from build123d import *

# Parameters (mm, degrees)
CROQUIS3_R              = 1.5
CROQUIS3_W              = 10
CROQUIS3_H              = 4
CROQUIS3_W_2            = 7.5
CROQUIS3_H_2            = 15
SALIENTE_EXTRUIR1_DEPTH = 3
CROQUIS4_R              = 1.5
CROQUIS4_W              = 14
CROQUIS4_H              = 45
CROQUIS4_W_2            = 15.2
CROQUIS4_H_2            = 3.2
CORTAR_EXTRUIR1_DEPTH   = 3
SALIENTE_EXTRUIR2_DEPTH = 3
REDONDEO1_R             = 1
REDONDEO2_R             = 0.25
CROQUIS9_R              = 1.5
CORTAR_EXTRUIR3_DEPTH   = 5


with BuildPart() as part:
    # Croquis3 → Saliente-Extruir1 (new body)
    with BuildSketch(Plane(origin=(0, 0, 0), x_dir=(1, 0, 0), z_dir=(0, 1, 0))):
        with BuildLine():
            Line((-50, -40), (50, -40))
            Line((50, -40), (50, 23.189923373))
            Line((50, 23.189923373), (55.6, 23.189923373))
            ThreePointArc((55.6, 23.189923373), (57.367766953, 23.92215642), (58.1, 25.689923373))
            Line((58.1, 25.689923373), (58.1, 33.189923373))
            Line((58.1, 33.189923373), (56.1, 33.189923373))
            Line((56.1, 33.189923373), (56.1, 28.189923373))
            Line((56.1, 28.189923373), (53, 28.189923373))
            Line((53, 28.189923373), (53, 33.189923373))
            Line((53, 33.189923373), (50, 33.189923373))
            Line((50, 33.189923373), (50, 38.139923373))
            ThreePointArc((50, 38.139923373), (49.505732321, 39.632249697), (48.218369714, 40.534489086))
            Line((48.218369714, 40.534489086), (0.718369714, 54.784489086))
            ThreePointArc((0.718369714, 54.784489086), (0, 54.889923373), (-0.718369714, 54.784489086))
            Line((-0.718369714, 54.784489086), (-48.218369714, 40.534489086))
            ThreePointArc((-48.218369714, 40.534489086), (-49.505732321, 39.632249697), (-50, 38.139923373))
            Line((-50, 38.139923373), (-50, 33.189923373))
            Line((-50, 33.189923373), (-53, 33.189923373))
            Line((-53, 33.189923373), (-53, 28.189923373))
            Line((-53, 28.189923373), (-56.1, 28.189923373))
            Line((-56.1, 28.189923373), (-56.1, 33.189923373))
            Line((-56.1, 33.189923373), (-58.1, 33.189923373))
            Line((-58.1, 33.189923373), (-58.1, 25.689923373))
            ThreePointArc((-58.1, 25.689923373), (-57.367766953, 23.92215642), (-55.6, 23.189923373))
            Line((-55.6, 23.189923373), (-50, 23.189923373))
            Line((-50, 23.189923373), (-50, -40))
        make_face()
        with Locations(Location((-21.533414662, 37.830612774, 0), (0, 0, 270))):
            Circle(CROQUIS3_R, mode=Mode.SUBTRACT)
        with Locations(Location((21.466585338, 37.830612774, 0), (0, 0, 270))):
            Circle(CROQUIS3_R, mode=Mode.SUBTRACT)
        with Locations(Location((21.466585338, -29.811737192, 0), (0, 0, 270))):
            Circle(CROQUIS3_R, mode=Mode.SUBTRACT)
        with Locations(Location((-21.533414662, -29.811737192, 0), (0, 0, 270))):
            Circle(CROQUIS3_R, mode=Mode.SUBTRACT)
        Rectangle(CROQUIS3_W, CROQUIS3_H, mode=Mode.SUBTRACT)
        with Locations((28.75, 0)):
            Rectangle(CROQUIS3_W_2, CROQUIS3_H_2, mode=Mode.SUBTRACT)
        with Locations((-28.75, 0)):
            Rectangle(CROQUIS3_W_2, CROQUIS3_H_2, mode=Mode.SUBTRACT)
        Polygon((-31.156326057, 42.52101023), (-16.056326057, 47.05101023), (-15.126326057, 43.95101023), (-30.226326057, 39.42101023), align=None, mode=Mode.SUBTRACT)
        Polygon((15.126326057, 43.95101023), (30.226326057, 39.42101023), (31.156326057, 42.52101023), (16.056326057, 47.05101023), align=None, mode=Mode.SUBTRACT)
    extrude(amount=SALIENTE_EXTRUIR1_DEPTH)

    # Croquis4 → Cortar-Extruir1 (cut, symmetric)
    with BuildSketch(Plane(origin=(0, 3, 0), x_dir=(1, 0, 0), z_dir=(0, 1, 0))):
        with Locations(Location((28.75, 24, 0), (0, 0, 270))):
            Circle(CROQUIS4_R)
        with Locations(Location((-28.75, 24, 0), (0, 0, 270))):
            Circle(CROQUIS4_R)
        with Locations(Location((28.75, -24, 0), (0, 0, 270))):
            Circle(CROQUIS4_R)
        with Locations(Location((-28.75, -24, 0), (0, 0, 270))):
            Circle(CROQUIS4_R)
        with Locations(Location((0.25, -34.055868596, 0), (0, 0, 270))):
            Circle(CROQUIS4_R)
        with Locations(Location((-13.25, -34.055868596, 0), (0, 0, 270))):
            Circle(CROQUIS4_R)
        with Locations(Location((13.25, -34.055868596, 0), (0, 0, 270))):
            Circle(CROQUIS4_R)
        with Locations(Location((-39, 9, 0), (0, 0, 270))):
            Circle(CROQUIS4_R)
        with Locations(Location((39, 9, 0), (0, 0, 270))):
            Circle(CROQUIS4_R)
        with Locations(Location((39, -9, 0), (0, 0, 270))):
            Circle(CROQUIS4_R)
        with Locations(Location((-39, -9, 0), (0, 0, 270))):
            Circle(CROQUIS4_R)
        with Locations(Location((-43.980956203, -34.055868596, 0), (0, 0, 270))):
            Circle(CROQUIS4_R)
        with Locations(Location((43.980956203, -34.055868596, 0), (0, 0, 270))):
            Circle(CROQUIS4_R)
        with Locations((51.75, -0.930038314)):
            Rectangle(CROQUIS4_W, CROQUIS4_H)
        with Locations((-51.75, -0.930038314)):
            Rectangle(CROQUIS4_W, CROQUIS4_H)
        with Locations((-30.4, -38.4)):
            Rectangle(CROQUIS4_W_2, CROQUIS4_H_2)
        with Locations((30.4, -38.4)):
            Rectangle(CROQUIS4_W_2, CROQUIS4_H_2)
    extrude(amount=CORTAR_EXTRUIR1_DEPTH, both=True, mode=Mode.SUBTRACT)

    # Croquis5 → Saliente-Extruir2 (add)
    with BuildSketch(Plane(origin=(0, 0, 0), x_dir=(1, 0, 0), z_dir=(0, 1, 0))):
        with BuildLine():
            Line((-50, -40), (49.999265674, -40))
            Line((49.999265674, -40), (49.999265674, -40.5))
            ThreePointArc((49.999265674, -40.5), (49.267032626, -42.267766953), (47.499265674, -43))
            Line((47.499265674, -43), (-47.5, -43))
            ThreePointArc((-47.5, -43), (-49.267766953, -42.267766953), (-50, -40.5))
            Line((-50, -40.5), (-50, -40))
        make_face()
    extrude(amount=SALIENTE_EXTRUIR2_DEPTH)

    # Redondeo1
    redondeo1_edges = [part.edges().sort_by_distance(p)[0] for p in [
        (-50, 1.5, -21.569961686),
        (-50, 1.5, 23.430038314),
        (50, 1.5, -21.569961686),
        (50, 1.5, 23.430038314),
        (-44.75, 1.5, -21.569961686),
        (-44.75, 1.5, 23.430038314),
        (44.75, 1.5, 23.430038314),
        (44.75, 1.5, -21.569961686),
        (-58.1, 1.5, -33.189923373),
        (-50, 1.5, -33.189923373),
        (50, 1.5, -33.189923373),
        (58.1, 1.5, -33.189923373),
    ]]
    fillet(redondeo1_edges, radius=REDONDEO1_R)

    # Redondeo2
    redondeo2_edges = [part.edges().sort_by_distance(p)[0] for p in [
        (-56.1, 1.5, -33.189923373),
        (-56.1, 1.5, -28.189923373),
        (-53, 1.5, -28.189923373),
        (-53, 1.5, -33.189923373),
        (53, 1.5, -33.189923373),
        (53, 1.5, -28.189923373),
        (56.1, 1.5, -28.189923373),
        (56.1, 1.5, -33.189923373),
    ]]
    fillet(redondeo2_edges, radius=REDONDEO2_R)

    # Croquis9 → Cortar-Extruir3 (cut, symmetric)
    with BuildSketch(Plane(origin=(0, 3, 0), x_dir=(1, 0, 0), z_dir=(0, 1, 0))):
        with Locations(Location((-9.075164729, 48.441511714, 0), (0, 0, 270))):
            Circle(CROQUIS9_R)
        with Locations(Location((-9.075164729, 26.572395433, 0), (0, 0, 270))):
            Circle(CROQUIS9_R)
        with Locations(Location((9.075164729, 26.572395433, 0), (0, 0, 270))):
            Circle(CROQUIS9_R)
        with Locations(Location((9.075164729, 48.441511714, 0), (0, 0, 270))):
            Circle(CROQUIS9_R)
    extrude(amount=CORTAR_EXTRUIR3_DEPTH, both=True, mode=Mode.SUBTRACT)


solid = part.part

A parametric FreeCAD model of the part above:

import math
import FreeCAD as App
import Part
import Sketcher
from FreeCAD import Vector
Q = App.Units.Quantity


def edges_at(feature, points):
    """Names of the edges that pass closest to the given points."""
    edges = feature.Shape.Edges
    near = lambda p: min(range(len(edges)), key=lambda i: edges[i].distToShape(Part.Vertex(*p))[0])
    return sorted({f"Edge{near(p) + 1}" for p in points})

doc = App.newDocument("Part")
body = doc.addObject("PartDesign::Body", "Body")

sketch1 = body.newObject("Sketcher::SketchObject", "Sketch")
sketch1.AttachmentSupport = (doc.getObject("XZ_Plane"), [""])
sketch1.MapMode = "FlatFace"
sketch1.addGeometry(Part.LineSegment(Vector(-50, 40, 0), Vector(50, 40, 0)), False)
sketch1.addGeometry(Part.LineSegment(Vector(50, 40, 0), Vector(50, -23.189923, 0)), False)
sketch1.addGeometry(Part.LineSegment(Vector(50, -23.189923, 0), Vector(55.6, -23.189923, 0)), False)
sketch1.addGeometry(Part.ArcOfCircle(Part.Circle(Vector(55.6, -25.689923, 0), Vector(0, 0, 1), 2.5), math.radians(0), math.radians(90)), False)
sketch1.addGeometry(Part.LineSegment(Vector(58.1, -25.689923, 0), Vector(58.1, -33.189923, 0)), False)
sketch1.addGeometry(Part.LineSegment(Vector(58.1, -33.189923, 0), Vector(56.1, -33.189923, 0)), False)
sketch1.addGeometry(Part.LineSegment(Vector(56.1, -33.189923, 0), Vector(56.1, -28.189923, 0)), False)
sketch1.addGeometry(Part.LineSegment(Vector(56.1, -28.189923, 0), Vector(53, -28.189923, 0)), False)
sketch1.addGeometry(Part.LineSegment(Vector(53, -28.189923, 0), Vector(53, -33.189923, 0)), False)
sketch1.addGeometry(Part.LineSegment(Vector(53, -33.189923, 0), Vector(50, -33.189923, 0)), False)
sketch1.addGeometry(Part.LineSegment(Vector(50, -33.189923, 0), Vector(50, -38.139923, 0)), False)
sketch1.addGeometry(Part.ArcOfCircle(Part.Circle(Vector(47.5, -38.139923, 0), Vector(0, 0, 1), 2.5), math.radians(-73.300756), math.radians(0)), False)
sketch1.addGeometry(Part.LineSegment(Vector(48.21837, -40.534489, 0), Vector(0.71837, -54.784489, 0)), False)
sketch1.addGeometry(Part.ArcOfCircle(Part.Circle(Vector(0, -52.389923, 0), Vector(0, 0, 1), 2.5), math.radians(-106.699244), math.radians(-73.300756)), False)
sketch1.addGeometry(Part.LineSegment(Vector(-0.71837, -54.784489, 0), Vector(-48.21837, -40.534489, 0)), False)
sketch1.addGeometry(Part.ArcOfCircle(Part.Circle(Vector(-47.5, -38.139923, 0), Vector(0, 0, 1), 2.5), math.radians(180), math.radians(253.300756)), False)
sketch1.addGeometry(Part.LineSegment(Vector(-50, -38.139923, 0), Vector(-50, -33.189923, 0)), False)
sketch1.addGeometry(Part.LineSegment(Vector(-50, -33.189923, 0), Vector(-53, -33.189923, 0)), False)
sketch1.addGeometry(Part.LineSegment(Vector(-53, -33.189923, 0), Vector(-53, -28.189923, 0)), False)
sketch1.addGeometry(Part.LineSegment(Vector(-53, -28.189923, 0), Vector(-56.1, -28.189923, 0)), False)
sketch1.addGeometry(Part.LineSegment(Vector(-56.1, -28.189923, 0), Vector(-56.1, -33.189923, 0)), False)
sketch1.addGeometry(Part.LineSegment(Vector(-56.1, -33.189923, 0), Vector(-58.1, -33.189923, 0)), False)
sketch1.addGeometry(Part.LineSegment(Vector(-58.1, -33.189923, 0), Vector(-58.1, -25.689923, 0)), False)
sketch1.addGeometry(Part.ArcOfCircle(Part.Circle(Vector(-55.6, -25.689923, 0), Vector(0, 0, 1), 2.5), math.radians(90), math.radians(180)), False)
sketch1.addGeometry(Part.LineSegment(Vector(-55.6, -23.189923, 0), Vector(-50, -23.189923, 0)), False)
sketch1.addGeometry(Part.LineSegment(Vector(-50, -23.189923, 0), Vector(-50, 40, 0)), False)
sketch1.addGeometry(Part.Circle(Vector(-21.533415, 29.811737, 0), Vector(0, 0, 1), 1.5), False)
sketch1.addGeometry(Part.LineSegment(Vector(-25, 7.5, 0), Vector(-32.5, 7.5, 0)), False)
sketch1.addGeometry(Part.LineSegment(Vector(-32.5, 7.5, 0), Vector(-32.5, -7.5, 0)), False)
sketch1.addGeometry(Part.LineSegment(Vector(-32.5, -7.5, 0), Vector(-25, -7.5, 0)), False)
sketch1.addGeometry(Part.LineSegment(Vector(-25, -7.5, 0), Vector(-25, 7.5, 0)), False)
sketch1.addGeometry(Part.Circle(Vector(21.466585, 29.811737, 0), Vector(0, 0, 1), 1.5), False)
sketch1.addGeometry(Part.LineSegment(Vector(5, 2, 0), Vector(-5, 2, 0)), False)
sketch1.addGeometry(Part.LineSegment(Vector(-5, 2, 0), Vector(-5, -2, 0)), False)
sketch1.addGeometry(Part.LineSegment(Vector(-5, -2, 0), Vector(5, -2, 0)), False)
sketch1.addGeometry(Part.LineSegment(Vector(5, -2, 0), Vector(5, 2, 0)), False)
sketch1.addGeometry(Part.LineSegment(Vector(32.5, 7.5, 0), Vector(25, 7.5, 0)), False)
sketch1.addGeometry(Part.LineSegment(Vector(25, 7.5, 0), Vector(25, -7.5, 0)), False)
sketch1.addGeometry(Part.LineSegment(Vector(25, -7.5, 0), Vector(32.5, -7.5, 0)), False)
sketch1.addGeometry(Part.LineSegment(Vector(32.5, -7.5, 0), Vector(32.5, 7.5, 0)), False)
sketch1.addGeometry(Part.Circle(Vector(-21.533415, -37.830613, 0), Vector(0, 0, 1), 1.5), False)
sketch1.addGeometry(Part.LineSegment(Vector(-30.226326, -39.42101, 0), Vector(-31.156326, -42.52101, 0)), False)
sketch1.addGeometry(Part.LineSegment(Vector(-31.156326, -42.52101, 0), Vector(-16.056326, -47.05101, 0)), False)
sketch1.addGeometry(Part.LineSegment(Vector(-16.056326, -47.05101, 0), Vector(-15.126326, -43.95101, 0)), False)
sketch1.addGeometry(Part.LineSegment(Vector(-15.126326, -43.95101, 0), Vector(-30.226326, -39.42101, 0)), False)
sketch1.addGeometry(Part.Circle(Vector(21.466585, -37.830613, 0), Vector(0, 0, 1), 1.5), False)
sketch1.addGeometry(Part.LineSegment(Vector(30.226326, -39.42101, 0), Vector(15.126326, -43.95101, 0)), False)
sketch1.addGeometry(Part.LineSegment(Vector(15.126326, -43.95101, 0), Vector(16.056326, -47.05101, 0)), False)
sketch1.addGeometry(Part.LineSegment(Vector(16.056326, -47.05101, 0), Vector(31.156326, -42.52101, 0)), False)
sketch1.addGeometry(Part.LineSegment(Vector(31.156326, -42.52101, 0), Vector(30.226326, -39.42101, 0)), False)
sketch1.addConstraint(Sketcher.Constraint("Coincident", 0, 2, 1, 1))
sketch1.addConstraint(Sketcher.Constraint("Coincident", 1, 2, 2, 1))
sketch1.addConstraint(Sketcher.Constraint("Tangent", 2, 2, 3, 2))
sketch1.addConstraint(Sketcher.Constraint("Tangent", 3, 1, 4, 1))
sketch1.addConstraint(Sketcher.Constraint("Coincident", 4, 2, 5, 1))
sketch1.addConstraint(Sketcher.Constraint("Coincident", 5, 2, 6, 1))
sketch1.addConstraint(Sketcher.Constraint("Coincident", 6, 2, 7, 1))
sketch1.addConstraint(Sketcher.Constraint("Coincident", 7, 2, 8, 1))
sketch1.addConstraint(Sketcher.Constraint("Coincident", 8, 2, 9, 1))
sketch1.addConstraint(Sketcher.Constraint("Coincident", 9, 2, 10, 1))
sketch1.addConstraint(Sketcher.Constraint("Tangent", 10, 2, 11, 2))
sketch1.addConstraint(Sketcher.Constraint("Tangent", 11, 1, 12, 1))
sketch1.addConstraint(Sketcher.Constraint("Tangent", 12, 2, 13, 2))
sketch1.addConstraint(Sketcher.Constraint("Tangent", 13, 1, 14, 1))
sketch1.addConstraint(Sketcher.Constraint("Tangent", 14, 2, 15, 2))
sketch1.addConstraint(Sketcher.Constraint("Tangent", 15, 1, 16, 1))
sketch1.addConstraint(Sketcher.Constraint("Coincident", 16, 2, 17, 1))
sketch1.addConstraint(Sketcher.Constraint("Coincident", 17, 2, 18, 1))
sketch1.addConstraint(Sketcher.Constraint("Coincident", 18, 2, 19, 1))
sketch1.addConstraint(Sketcher.Constraint("Coincident", 19, 2, 20, 1))
sketch1.addConstraint(Sketcher.Constraint("Coincident", 20, 2, 21, 1))
sketch1.addConstraint(Sketcher.Constraint("Coincident", 21, 2, 22, 1))
sketch1.addConstraint(Sketcher.Constraint("Tangent", 22, 2, 23, 2))
sketch1.addConstraint(Sketcher.Constraint("Tangent", 23, 1, 24, 1))
sketch1.addConstraint(Sketcher.Constraint("Coincident", 24, 2, 25, 1))
sketch1.addConstraint(Sketcher.Constraint("Coincident", 25, 2, 0, 1))
sketch1.addConstraint(Sketcher.Constraint("Coincident", 27, 2, 28, 1))
sketch1.addConstraint(Sketcher.Constraint("Coincident", 28, 2, 29, 1))
sketch1.addConstraint(Sketcher.Constraint("Coincident", 29, 2, 30, 1))
sketch1.addConstraint(Sketcher.Constraint("Coincident", 30, 2, 27, 1))
sketch1.addConstraint(Sketcher.Constraint("Coincident", 32, 2, 33, 1))
sketch1.addConstraint(Sketcher.Constraint("Coincident", 33, 2, 34, 1))
sketch1.addConstraint(Sketcher.Constraint("Coincident", 34, 2, 35, 1))
sketch1.addConstraint(Sketcher.Constraint("Coincident", 35, 2, 32, 1))
sketch1.addConstraint(Sketcher.Constraint("Coincident", 36, 2, 37, 1))
sketch1.addConstraint(Sketcher.Constraint("Coincident", 37, 2, 38, 1))
sketch1.addConstraint(Sketcher.Constraint("Coincident", 38, 2, 39, 1))
sketch1.addConstraint(Sketcher.Constraint("Coincident", 39, 2, 36, 1))
sketch1.addConstraint(Sketcher.Constraint("Coincident", 41, 2, 42, 1))
sketch1.addConstraint(Sketcher.Constraint("Coincident", 42, 2, 43, 1))
sketch1.addConstraint(Sketcher.Constraint("Coincident", 43, 2, 44, 1))
sketch1.addConstraint(Sketcher.Constraint("Coincident", 44, 2, 41, 1))
sketch1.addConstraint(Sketcher.Constraint("Coincident", 46, 2, 47, 1))
sketch1.addConstraint(Sketcher.Constraint("Coincident", 47, 2, 48, 1))
sketch1.addConstraint(Sketcher.Constraint("Coincident", 48, 2, 49, 1))
sketch1.addConstraint(Sketcher.Constraint("Coincident", 49, 2, 46, 1))
sketch1.addConstraint(Sketcher.Constraint("Horizontal", 0))
sketch1.addConstraint(Sketcher.Constraint("Vertical", 1))
sketch1.addConstraint(Sketcher.Constraint("Horizontal", 2))
sketch1.addConstraint(Sketcher.Constraint("Vertical", 4))
sketch1.addConstraint(Sketcher.Constraint("Horizontal", 5))
sketch1.addConstraint(Sketcher.Constraint("Vertical", 6))
sketch1.addConstraint(Sketcher.Constraint("Horizontal", 7))
sketch1.addConstraint(Sketcher.Constraint("Vertical", 8))
sketch1.addConstraint(Sketcher.Constraint("Horizontal", 9))
sketch1.addConstraint(Sketcher.Constraint("Vertical", 10))
sketch1.addConstraint(Sketcher.Constraint("Vertical", 16))
sketch1.addConstraint(Sketcher.Constraint("Horizontal", 17))
sketch1.addConstraint(Sketcher.Constraint("Vertical", 18))
sketch1.addConstraint(Sketcher.Constraint("Horizontal", 19))
sketch1.addConstraint(Sketcher.Constraint("Vertical", 20))
sketch1.addConstraint(Sketcher.Constraint("Horizontal", 21))
sketch1.addConstraint(Sketcher.Constraint("Vertical", 22))
sketch1.addConstraint(Sketcher.Constraint("Horizontal", 24))
sketch1.addConstraint(Sketcher.Constraint("Vertical", 25))
sketch1.addConstraint(Sketcher.Constraint("Horizontal", 27))
sketch1.addConstraint(Sketcher.Constraint("Vertical", 28))
sketch1.addConstraint(Sketcher.Constraint("Horizontal", 29))
sketch1.addConstraint(Sketcher.Constraint("Vertical", 30))
sketch1.addConstraint(Sketcher.Constraint("Horizontal", 32))
sketch1.addConstraint(Sketcher.Constraint("Vertical", 33))
sketch1.addConstraint(Sketcher.Constraint("Horizontal", 34))
sketch1.addConstraint(Sketcher.Constraint("Vertical", 35))
sketch1.addConstraint(Sketcher.Constraint("Horizontal", 36))
sketch1.addConstraint(Sketcher.Constraint("Vertical", 37))
sketch1.addConstraint(Sketcher.Constraint("Horizontal", 38))
sketch1.addConstraint(Sketcher.Constraint("Vertical", 39))
sketch1.addConstraint(Sketcher.Constraint("Equal", 3, 11))
sketch1.addConstraint(Sketcher.Constraint("Equal", 11, 13))
sketch1.addConstraint(Sketcher.Constraint("Equal", 13, 15))
sketch1.addConstraint(Sketcher.Constraint("Equal", 15, 23))
sketch1.addConstraint(Sketcher.Constraint("Equal", 26, 31))
sketch1.addConstraint(Sketcher.Constraint("Equal", 31, 40))
sketch1.addConstraint(Sketcher.Constraint("Equal", 40, 45))
sketch1.addConstraint(Sketcher.Constraint("Symmetric", 32, 2, 34, 2, -1, 1))
sketch1.addConstraint(Sketcher.Constraint("Symmetric", 29, 2, 36, 2, -1, 1))
sketch1.addConstraint(Sketcher.Constraint("Symmetric", 27, 2, 38, 2, -1, 1))
sketch1.addConstraint(Sketcher.Constraint("Symmetric", 11, 3, 15, 3, -2))
sketch1.addConstraint(Sketcher.Constraint("Symmetric", 3, 3, 23, 3, -2))
sketch1.addConstraint(Sketcher.Constraint("Symmetric", 8, 2, 17, 2, -2))
sketch1.addConstraint(Sketcher.Constraint("Symmetric", 6, 2, 19, 2, -2))
sketch1.addConstraint(Sketcher.Constraint("Symmetric", 43, 2, 46, 2, -2))
sketch1.addConstraint(Sketcher.Constraint("Symmetric", 42, 2, 47, 2, -2))
sketch1.addConstraint(Sketcher.Constraint("Symmetric", 41, 2, 48, 2, -2))
sketch1.addConstraint(Sketcher.Constraint("Symmetric", 44, 2, 49, 2, -2))
sketch1.addConstraint(Sketcher.Constraint("PointOnObject", 13, 3, -2))
sketch1.addConstraint(Sketcher.Constraint("Perpendicular", 14, 41))
sketch1.addConstraint(Sketcher.Constraint("Perpendicular", 41, 42))
sketch1.addConstraint(Sketcher.Constraint("Perpendicular", 42, 43))
sketch1.addConstraint(Sketcher.Constraint("Perpendicular", 43, 44))
sketch1.addConstraint(Sketcher.Constraint("Horizontal", 26, 3, 31, 3))
sketch1.addConstraint(Sketcher.Constraint("Horizontal", 40, 3, 45, 3))
sketch1.addConstraint(Sketcher.Constraint("Horizontal", 5, 2, 8, 2))
sketch1.addConstraint(Sketcher.Constraint("Horizontal", 17, 2, 20, 2))
sketch1.addConstraint(Sketcher.Constraint("Horizontal", 30, 2, 36, 2))
sketch1.addConstraint(Sketcher.Constraint("Vertical", 26, 3, 40, 3))
sketch1.addConstraint(Sketcher.Constraint("Vertical", 31, 3, 45, 3))
sketch1.addConstraint(Sketcher.Constraint("Vertical", 1, 2, 9, 2))
sketch1.addConstraint(Sketcher.Constraint("Vertical", 16, 2, 24, 2))
sketch1.addConstraint(Sketcher.Constraint("Equal", 38, 4))
sketch1.addConstraint(Sketcher.Constraint("Diameter", 26, Q("3 mm")))
sketch1.addConstraint(Sketcher.Constraint("Radius", 3, Q("2.5 mm")))
sketch1.addConstraint(Sketcher.Constraint("DistanceX", 0, 1, 0, 2, Q("100 mm")))
sketch1.addConstraint(Sketcher.Constraint("DistanceX", 5, 2, 5, 1, Q("2 mm")))
sketch1.addConstraint(Sketcher.Constraint("DistanceX", 9, 2, 9, 1, Q("3 mm")))
sketch1.addConstraint(Sketcher.Constraint("DistanceX", 32, 2, 32, 1, Q("10 mm")))
sketch1.addConstraint(Sketcher.Constraint("DistanceY", 6, 1, 6, 2, Q("5 mm")))
sketch1.addConstraint(Sketcher.Constraint("DistanceY", 28, 2, 28, 1, Q("15 mm")))
sketch1.addConstraint(Sketcher.Constraint("DistanceY", 33, 2, 33, 1, Q("4 mm")))
sketch1.addConstraint(Sketcher.Constraint("DistanceX", 2, 1, 2, 2, Q("5.6 mm")))
sketch1.addConstraint(Sketcher.Constraint("DistanceX", 27, 2, 27, 1, Q("7.5 mm")))
sketch1.addConstraint(Sketcher.Constraint("DistanceY", -1, 1, 0, 2, Q("40 mm")))
sketch1.addConstraint(Sketcher.Constraint("DistanceX", 29, 2, -1, 1, Q("25 mm")))
sketch1.addConstraint(Sketcher.Constraint("DistanceX", 26, 3, 31, 3, Q("43 mm")))
sketch1.addConstraint(Sketcher.Constraint("DistanceY", 10, 2, 10, 1, Q("4.95 mm")))
sketch1.addConstraint(Sketcher.Constraint("DistanceY", 13, 3, 3, 3, Q("26.7 mm")))
sketch1.addConstraint(Sketcher.Constraint("DistanceX", 41, 2, 42, 2, Q("15.1 mm")))
sketch1.addConstraint(Sketcher.Constraint("DistanceY", 42, 2, 43, 2, Q("3.1 mm")))
sketch1.addConstraint(Sketcher.Constraint("DistanceY", 1, 2, 1, 1, Q("63.189923 mm")))
sketch1.addConstraint(Sketcher.Constraint("DistanceY", 41, 2, -1, 1, Q("42.52101 mm")))
sketch1.addConstraint(Sketcher.Constraint("DistanceY", 23, 3, 26, 3, Q("55.501661 mm")))
sketch1.addConstraint(Sketcher.Constraint("DistanceY", 15, 3, 40, 3, Q("0.309311 mm")))
sketch1.addConstraint(Sketcher.Constraint("DistanceX", 41, 2, 40, 3, Q("9.622911 mm")))
sketch1.addConstraint(Sketcher.Constraint("DistanceX", 46, 2, 45, 3, Q("6.340259 mm")))
pad1 = body.newObject("PartDesign::Pad", "Pad")
pad1.Profile = sketch1
pad1.Length = 3
pad1.Reversed = True

sketch2 = body.newObject("Sketcher::SketchObject", "Sketch001")
sketch2.AttachmentSupport = (doc.getObject("XZ_Plane"), [""])
sketch2.MapMode = "FlatFace"
sketch2.AttachmentOffset = App.Placement(Vector(0, 0, -3), App.Rotation())
sketch2.addGeometry(Part.Circle(Vector(28.75, -24, 0), Vector(0, 0, 1), 1.5), False)
sketch2.addGeometry(Part.Circle(Vector(-28.75, -24, 0), Vector(0, 0, 1), 1.5), False)
sketch2.addGeometry(Part.Circle(Vector(28.75, 24, 0), Vector(0, 0, 1), 1.5), False)
sketch2.addGeometry(Part.Circle(Vector(-28.75, 24, 0), Vector(0, 0, 1), 1.5), False)
sketch2.addGeometry(Part.Circle(Vector(0.25, 34.055869, 0), Vector(0, 0, 1), 1.5), False)
sketch2.addGeometry(Part.Circle(Vector(-13.25, 34.055869, 0), Vector(0, 0, 1), 1.5), False)
sketch2.addGeometry(Part.Circle(Vector(13.25, 34.055869, 0), Vector(0, 0, 1), 1.5), False)
sketch2.addGeometry(Part.Circle(Vector(-39, -9, 0), Vector(0, 0, 1), 1.5), False)
sketch2.addGeometry(Part.Circle(Vector(39, -9, 0), Vector(0, 0, 1), 1.5), False)
sketch2.addGeometry(Part.Circle(Vector(39, 9, 0), Vector(0, 0, 1), 1.5), False)
sketch2.addGeometry(Part.Circle(Vector(-39, 9, 0), Vector(0, 0, 1), 1.5), False)
sketch2.addGeometry(Part.Circle(Vector(-43.980956, 34.055869, 0), Vector(0, 0, 1), 1.5), False)
sketch2.addGeometry(Part.Circle(Vector(43.980956, 34.055869, 0), Vector(0, 0, 1), 1.5), False)
sketch2.addGeometry(Part.LineSegment(Vector(44.75, -21.569962, 0), Vector(44.75, 23.430038, 0)), False)
sketch2.addGeometry(Part.LineSegment(Vector(44.75, 23.430038, 0), Vector(58.75, 23.430038, 0)), False)
sketch2.addGeometry(Part.LineSegment(Vector(58.75, 23.430038, 0), Vector(58.75, -21.569962, 0)), False)
sketch2.addGeometry(Part.LineSegment(Vector(58.75, -21.569962, 0), Vector(44.75, -21.569962, 0)), False)
sketch2.addGeometry(Part.LineSegment(Vector(-58.75, -21.569962, 0), Vector(-58.75, 23.430038, 0)), False)
sketch2.addGeometry(Part.LineSegment(Vector(-58.75, 23.430038, 0), Vector(-44.75, 23.430038, 0)), False)
sketch2.addGeometry(Part.LineSegment(Vector(-44.75, 23.430038, 0), Vector(-44.75, -21.569962, 0)), False)
sketch2.addGeometry(Part.LineSegment(Vector(-44.75, -21.569962, 0), Vector(-58.75, -21.569962, 0)), False)
sketch2.addGeometry(Part.LineSegment(Vector(-38, 36.8, 0), Vector(-38, 40, 0)), False)
sketch2.addGeometry(Part.LineSegment(Vector(-38, 40, 0), Vector(-22.8, 40, 0)), False)
sketch2.addGeometry(Part.LineSegment(Vector(-22.8, 40, 0), Vector(-22.8, 36.8, 0)), False)
sketch2.addGeometry(Part.LineSegment(Vector(-22.8, 36.8, 0), Vector(-38, 36.8, 0)), False)
sketch2.addGeometry(Part.LineSegment(Vector(22.8, 36.8, 0), Vector(22.8, 40, 0)), False)
sketch2.addGeometry(Part.LineSegment(Vector(22.8, 40, 0), Vector(38, 40, 0)), False)
sketch2.addGeometry(Part.LineSegment(Vector(38, 40, 0), Vector(38, 36.8, 0)), False)
sketch2.addGeometry(Part.LineSegment(Vector(38, 36.8, 0), Vector(22.8, 36.8, 0)), False)
sketch2.addConstraint(Sketcher.Constraint("Coincident", 13, 2, 14, 1))
sketch2.addConstraint(Sketcher.Constraint("Coincident", 14, 2, 15, 1))
sketch2.addConstraint(Sketcher.Constraint("Coincident", 15, 2, 16, 1))
sketch2.addConstraint(Sketcher.Constraint("Coincident", 16, 2, 13, 1))
sketch2.addConstraint(Sketcher.Constraint("Coincident", 17, 2, 18, 1))
sketch2.addConstraint(Sketcher.Constraint("Coincident", 18, 2, 19, 1))
sketch2.addConstraint(Sketcher.Constraint("Coincident", 19, 2, 20, 1))
sketch2.addConstraint(Sketcher.Constraint("Coincident", 20, 2, 17, 1))
sketch2.addConstraint(Sketcher.Constraint("Coincident", 21, 2, 22, 1))
sketch2.addConstraint(Sketcher.Constraint("Coincident", 22, 2, 23, 1))
sketch2.addConstraint(Sketcher.Constraint("Coincident", 23, 2, 24, 1))
sketch2.addConstraint(Sketcher.Constraint("Coincident", 24, 2, 21, 1))
sketch2.addConstraint(Sketcher.Constraint("Coincident", 25, 2, 26, 1))
sketch2.addConstraint(Sketcher.Constraint("Coincident", 26, 2, 27, 1))
sketch2.addConstraint(Sketcher.Constraint("Coincident", 27, 2, 28, 1))
sketch2.addConstraint(Sketcher.Constraint("Coincident", 28, 2, 25, 1))
sketch2.addConstraint(Sketcher.Constraint("Vertical", 13))
sketch2.addConstraint(Sketcher.Constraint("Horizontal", 14))
sketch2.addConstraint(Sketcher.Constraint("Vertical", 15))
sketch2.addConstraint(Sketcher.Constraint("Horizontal", 16))
sketch2.addConstraint(Sketcher.Constraint("Vertical", 17))
sketch2.addConstraint(Sketcher.Constraint("Horizontal", 18))
sketch2.addConstraint(Sketcher.Constraint("Vertical", 19))
sketch2.addConstraint(Sketcher.Constraint("Horizontal", 20))
sketch2.addConstraint(Sketcher.Constraint("Vertical", 21))
sketch2.addConstraint(Sketcher.Constraint("Horizontal", 22))
sketch2.addConstraint(Sketcher.Constraint("Vertical", 23))
sketch2.addConstraint(Sketcher.Constraint("Horizontal", 24))
sketch2.addConstraint(Sketcher.Constraint("Vertical", 25))
sketch2.addConstraint(Sketcher.Constraint("Horizontal", 26))
sketch2.addConstraint(Sketcher.Constraint("Vertical", 27))
sketch2.addConstraint(Sketcher.Constraint("Horizontal", 28))
sketch2.addConstraint(Sketcher.Constraint("Equal", 0, 1))
sketch2.addConstraint(Sketcher.Constraint("Equal", 1, 2))
sketch2.addConstraint(Sketcher.Constraint("Equal", 2, 3))
sketch2.addConstraint(Sketcher.Constraint("Equal", 3, 4))
sketch2.addConstraint(Sketcher.Constraint("Equal", 4, 5))
sketch2.addConstraint(Sketcher.Constraint("Equal", 5, 6))
sketch2.addConstraint(Sketcher.Constraint("Equal", 6, 7))
sketch2.addConstraint(Sketcher.Constraint("Equal", 7, 8))
sketch2.addConstraint(Sketcher.Constraint("Equal", 8, 9))
sketch2.addConstraint(Sketcher.Constraint("Equal", 9, 10))
sketch2.addConstraint(Sketcher.Constraint("Equal", 10, 11))
sketch2.addConstraint(Sketcher.Constraint("Equal", 11, 12))
sketch2.addConstraint(Sketcher.Constraint("Symmetric", 1, 3, 2, 3, -1, 1))
sketch2.addConstraint(Sketcher.Constraint("Symmetric", 0, 3, 3, 3, -1, 1))
sketch2.addConstraint(Sketcher.Constraint("Symmetric", 7, 3, 9, 3, -1, 1))
sketch2.addConstraint(Sketcher.Constraint("Symmetric", 8, 3, 10, 3, -1, 1))
sketch2.addConstraint(Sketcher.Constraint("Symmetric", 0, 3, 1, 3, -2))
sketch2.addConstraint(Sketcher.Constraint("Symmetric", 5, 3, 6, 3, -2))
sketch2.addConstraint(Sketcher.Constraint("Symmetric", 7, 3, 8, 3, -2))
sketch2.addConstraint(Sketcher.Constraint("Symmetric", 11, 3, 12, 3, -2))
sketch2.addConstraint(Sketcher.Constraint("Symmetric", 14, 2, 17, 2, -2))
sketch2.addConstraint(Sketcher.Constraint("Symmetric", 16, 2, 19, 2, -2))
sketch2.addConstraint(Sketcher.Constraint("Symmetric", 22, 2, 25, 2, -2))
sketch2.addConstraint(Sketcher.Constraint("Symmetric", 24, 2, 27, 2, -2))
sketch2.addConstraint(Sketcher.Constraint("Horizontal", 4, 3, 5, 3))
sketch2.addConstraint(Sketcher.Constraint("Horizontal", 6, 3, 11, 3))
sketch2.addConstraint(Sketcher.Constraint("Diameter", 0, Q("3 mm")))
sketch2.addConstraint(Sketcher.Constraint("DistanceX", 14, 1, 14, 2, Q("14 mm")))
sketch2.addConstraint(Sketcher.Constraint("DistanceY", 13, 1, 13, 2, Q("45 mm")))
sketch2.addConstraint(Sketcher.Constraint("DistanceX", 22, 1, 22, 2, Q("15.2 mm")))
sketch2.addConstraint(Sketcher.Constraint("DistanceY", 21, 1, 21, 2, Q("3.2 mm")))
sketch2.addConstraint(Sketcher.Constraint("DistanceY", 0, 3, -1, 1, Q("24 mm")))
sketch2.addConstraint(Sketcher.Constraint("DistanceX", 7, 3, -1, 1, Q("39 mm")))
sketch2.addConstraint(Sketcher.Constraint("DistanceY", 7, 3, -1, 1, Q("9 mm")))
sketch2.addConstraint(Sketcher.Constraint("DistanceX", 21, 2, -1, 1, Q("38 mm")))
sketch2.addConstraint(Sketcher.Constraint("DistanceY", -1, 1, 21, 2, Q("40 mm")))
sketch2.addConstraint(Sketcher.Constraint("DistanceX", 3, 3, 4, 3, Q("29 mm")))
sketch2.addConstraint(Sketcher.Constraint("DistanceX", 5, 3, 2, 3, Q("42 mm")))
sketch2.addConstraint(Sketcher.Constraint("DistanceX", 2, 3, 13, 2, Q("16 mm")))
sketch2.addConstraint(Sketcher.Constraint("DistanceX", 1, 3, 0, 3, Q("57.5 mm")))
sketch2.addConstraint(Sketcher.Constraint("DistanceY", -1, 1, 4, 3, Q("34.055869 mm")))
sketch2.addConstraint(Sketcher.Constraint("DistanceY", -1, 1, 13, 2, Q("23.430038 mm")))
sketch2.addConstraint(Sketcher.Constraint("DistanceX", 11, 3, -1, 1, Q("43.980956 mm")))
pocket1 = body.newObject("PartDesign::Pocket", "Pocket")
pocket1.Profile = sketch2
pocket1.Length = 6
pocket1.Midplane = True

sketch3 = body.newObject("Sketcher::SketchObject", "Sketch002")
sketch3.AttachmentSupport = (doc.getObject("XZ_Plane"), [""])
sketch3.MapMode = "FlatFace"
sketch3.addGeometry(Part.LineSegment(Vector(49.999266, 40, 0), Vector(-50, 40, 0)), False)
sketch3.addGeometry(Part.LineSegment(Vector(-50, 40, 0), Vector(-50, 40.5, 0)), False)
sketch3.addGeometry(Part.ArcOfCircle(Part.Circle(Vector(-47.5, 40.5, 0), Vector(0, 0, 1), 2.5), math.radians(90), math.radians(180)), False)
sketch3.addGeometry(Part.LineSegment(Vector(-47.5, 43, 0), Vector(47.499266, 43, 0)), False)
sketch3.addGeometry(Part.ArcOfCircle(Part.Circle(Vector(47.499266, 40.5, 0), Vector(0, 0, 1), 2.5), math.radians(0), math.radians(90)), False)
sketch3.addGeometry(Part.LineSegment(Vector(49.999266, 40.5, 0), Vector(49.999266, 40, 0)), False)
sketch3.addConstraint(Sketcher.Constraint("Coincident", 0, 2, 1, 1))
sketch3.addConstraint(Sketcher.Constraint("Tangent", 1, 2, 2, 2))
sketch3.addConstraint(Sketcher.Constraint("Tangent", 2, 1, 3, 1))
sketch3.addConstraint(Sketcher.Constraint("Tangent", 3, 2, 4, 2))
sketch3.addConstraint(Sketcher.Constraint("Tangent", 4, 1, 5, 1))
sketch3.addConstraint(Sketcher.Constraint("Coincident", 5, 2, 0, 1))
sketch3.addConstraint(Sketcher.Constraint("Horizontal", 0))
sketch3.addConstraint(Sketcher.Constraint("Vertical", 1))
sketch3.addConstraint(Sketcher.Constraint("Horizontal", 3))
sketch3.addConstraint(Sketcher.Constraint("Vertical", 5))
sketch3.addConstraint(Sketcher.Constraint("Equal", 2, 4))
sketch3.addConstraint(Sketcher.Constraint("Radius", 2, Q("2.5 mm")))
sketch3.addConstraint(Sketcher.Constraint("DistanceY", 1, 1, 1, 2, Q("0.5 mm")))
sketch3.addConstraint(Sketcher.Constraint("DistanceX", 0, 2, -1, 1, Q("50 mm")))
sketch3.addConstraint(Sketcher.Constraint("DistanceY", -1, 1, 0, 2, Q("40 mm")))
sketch3.addConstraint(Sketcher.Constraint("DistanceX", 0, 2, 0, 1, Q("99.999266 mm")))
pad2 = body.newObject("PartDesign::Pad", "Pad001")
pad2.Profile = sketch3
pad2.Length = 3
pad2.Reversed = True
doc.recompute()

fillet = body.newObject("PartDesign::Fillet", "Fillet")
fillet.Base = (pad2, edges_at(pad2, [
    (-50, 1.5, -21.57),
    (-50, 1.5, 23.43),
    (50, 1.5, -21.57),
    (50, 1.5, 23.43),
    (-44.75, 1.5, -21.57),
    (-44.75, 1.5, 23.43),
    (44.75, 1.5, 23.43),
    (44.75, 1.5, -21.57),
    (-58.1, 1.5, -33.19),
    (-50, 1.5, -33.19),
    (50, 1.5, -33.19),
    (58.1, 1.5, -33.19),
]))
fillet.Radius = 1
doc.recompute()

fillet2 = body.newObject("PartDesign::Fillet", "Fillet001")
fillet2.Base = (fillet, edges_at(fillet, [
    (-56.1, 1.5, -33.19),
    (-56.1, 1.5, -28.19),
    (-53, 1.5, -28.19),
    (-53, 1.5, -33.19),
    (53, 1.5, -33.19),
    (53, 1.5, -28.19),
    (56.1, 1.5, -28.19),
    (56.1, 1.5, -33.19),
]))
fillet2.Radius = 0.25

sketch4 = body.newObject("Sketcher::SketchObject", "Sketch003")
sketch4.AttachmentSupport = (doc.getObject("XZ_Plane"), [""])
sketch4.MapMode = "FlatFace"
sketch4.AttachmentOffset = App.Placement(Vector(0, 0, -3), App.Rotation())
sketch4.addGeometry(Part.Circle(Vector(-9.075165, -48.441512, 0), Vector(0, 0, 1), 1.5), False)
sketch4.addGeometry(Part.Circle(Vector(-9.075165, -26.572395, 0), Vector(0, 0, 1), 1.5), False)
sketch4.addGeometry(Part.Circle(Vector(9.075165, -26.572395, 0), Vector(0, 0, 1), 1.5), False)
sketch4.addGeometry(Part.Circle(Vector(9.075165, -48.441512, 0), Vector(0, 0, 1), 1.5), False)
sketch4.addConstraint(Sketcher.Constraint("Equal", 0, 1))
sketch4.addConstraint(Sketcher.Constraint("Equal", 1, 2))
sketch4.addConstraint(Sketcher.Constraint("Equal", 2, 3))
sketch4.addConstraint(Sketcher.Constraint("Symmetric", 1, 3, 2, 3, -2))
sketch4.addConstraint(Sketcher.Constraint("Symmetric", 0, 3, 3, 3, -2))
sketch4.addConstraint(Sketcher.Constraint("Vertical", 0, 3, 1, 3))
sketch4.addConstraint(Sketcher.Constraint("Diameter", 0, Q("3 mm")))
sketch4.addConstraint(Sketcher.Constraint("DistanceY", 0, 3, -1, 1, Q("48.441512 mm")))
sketch4.addConstraint(Sketcher.Constraint("DistanceX", 1, 3, 2, 3, Q("18.150329 mm")))
sketch4.addConstraint(Sketcher.Constraint("DistanceY", 1, 3, -1, 1, Q("26.572395 mm")))
pocket2 = body.newObject("PartDesign::Pocket", "Pocket001")
pocket2.Profile = sketch4
pocket2.Length = 10
pocket2.Midplane = True

doc.recompute()
